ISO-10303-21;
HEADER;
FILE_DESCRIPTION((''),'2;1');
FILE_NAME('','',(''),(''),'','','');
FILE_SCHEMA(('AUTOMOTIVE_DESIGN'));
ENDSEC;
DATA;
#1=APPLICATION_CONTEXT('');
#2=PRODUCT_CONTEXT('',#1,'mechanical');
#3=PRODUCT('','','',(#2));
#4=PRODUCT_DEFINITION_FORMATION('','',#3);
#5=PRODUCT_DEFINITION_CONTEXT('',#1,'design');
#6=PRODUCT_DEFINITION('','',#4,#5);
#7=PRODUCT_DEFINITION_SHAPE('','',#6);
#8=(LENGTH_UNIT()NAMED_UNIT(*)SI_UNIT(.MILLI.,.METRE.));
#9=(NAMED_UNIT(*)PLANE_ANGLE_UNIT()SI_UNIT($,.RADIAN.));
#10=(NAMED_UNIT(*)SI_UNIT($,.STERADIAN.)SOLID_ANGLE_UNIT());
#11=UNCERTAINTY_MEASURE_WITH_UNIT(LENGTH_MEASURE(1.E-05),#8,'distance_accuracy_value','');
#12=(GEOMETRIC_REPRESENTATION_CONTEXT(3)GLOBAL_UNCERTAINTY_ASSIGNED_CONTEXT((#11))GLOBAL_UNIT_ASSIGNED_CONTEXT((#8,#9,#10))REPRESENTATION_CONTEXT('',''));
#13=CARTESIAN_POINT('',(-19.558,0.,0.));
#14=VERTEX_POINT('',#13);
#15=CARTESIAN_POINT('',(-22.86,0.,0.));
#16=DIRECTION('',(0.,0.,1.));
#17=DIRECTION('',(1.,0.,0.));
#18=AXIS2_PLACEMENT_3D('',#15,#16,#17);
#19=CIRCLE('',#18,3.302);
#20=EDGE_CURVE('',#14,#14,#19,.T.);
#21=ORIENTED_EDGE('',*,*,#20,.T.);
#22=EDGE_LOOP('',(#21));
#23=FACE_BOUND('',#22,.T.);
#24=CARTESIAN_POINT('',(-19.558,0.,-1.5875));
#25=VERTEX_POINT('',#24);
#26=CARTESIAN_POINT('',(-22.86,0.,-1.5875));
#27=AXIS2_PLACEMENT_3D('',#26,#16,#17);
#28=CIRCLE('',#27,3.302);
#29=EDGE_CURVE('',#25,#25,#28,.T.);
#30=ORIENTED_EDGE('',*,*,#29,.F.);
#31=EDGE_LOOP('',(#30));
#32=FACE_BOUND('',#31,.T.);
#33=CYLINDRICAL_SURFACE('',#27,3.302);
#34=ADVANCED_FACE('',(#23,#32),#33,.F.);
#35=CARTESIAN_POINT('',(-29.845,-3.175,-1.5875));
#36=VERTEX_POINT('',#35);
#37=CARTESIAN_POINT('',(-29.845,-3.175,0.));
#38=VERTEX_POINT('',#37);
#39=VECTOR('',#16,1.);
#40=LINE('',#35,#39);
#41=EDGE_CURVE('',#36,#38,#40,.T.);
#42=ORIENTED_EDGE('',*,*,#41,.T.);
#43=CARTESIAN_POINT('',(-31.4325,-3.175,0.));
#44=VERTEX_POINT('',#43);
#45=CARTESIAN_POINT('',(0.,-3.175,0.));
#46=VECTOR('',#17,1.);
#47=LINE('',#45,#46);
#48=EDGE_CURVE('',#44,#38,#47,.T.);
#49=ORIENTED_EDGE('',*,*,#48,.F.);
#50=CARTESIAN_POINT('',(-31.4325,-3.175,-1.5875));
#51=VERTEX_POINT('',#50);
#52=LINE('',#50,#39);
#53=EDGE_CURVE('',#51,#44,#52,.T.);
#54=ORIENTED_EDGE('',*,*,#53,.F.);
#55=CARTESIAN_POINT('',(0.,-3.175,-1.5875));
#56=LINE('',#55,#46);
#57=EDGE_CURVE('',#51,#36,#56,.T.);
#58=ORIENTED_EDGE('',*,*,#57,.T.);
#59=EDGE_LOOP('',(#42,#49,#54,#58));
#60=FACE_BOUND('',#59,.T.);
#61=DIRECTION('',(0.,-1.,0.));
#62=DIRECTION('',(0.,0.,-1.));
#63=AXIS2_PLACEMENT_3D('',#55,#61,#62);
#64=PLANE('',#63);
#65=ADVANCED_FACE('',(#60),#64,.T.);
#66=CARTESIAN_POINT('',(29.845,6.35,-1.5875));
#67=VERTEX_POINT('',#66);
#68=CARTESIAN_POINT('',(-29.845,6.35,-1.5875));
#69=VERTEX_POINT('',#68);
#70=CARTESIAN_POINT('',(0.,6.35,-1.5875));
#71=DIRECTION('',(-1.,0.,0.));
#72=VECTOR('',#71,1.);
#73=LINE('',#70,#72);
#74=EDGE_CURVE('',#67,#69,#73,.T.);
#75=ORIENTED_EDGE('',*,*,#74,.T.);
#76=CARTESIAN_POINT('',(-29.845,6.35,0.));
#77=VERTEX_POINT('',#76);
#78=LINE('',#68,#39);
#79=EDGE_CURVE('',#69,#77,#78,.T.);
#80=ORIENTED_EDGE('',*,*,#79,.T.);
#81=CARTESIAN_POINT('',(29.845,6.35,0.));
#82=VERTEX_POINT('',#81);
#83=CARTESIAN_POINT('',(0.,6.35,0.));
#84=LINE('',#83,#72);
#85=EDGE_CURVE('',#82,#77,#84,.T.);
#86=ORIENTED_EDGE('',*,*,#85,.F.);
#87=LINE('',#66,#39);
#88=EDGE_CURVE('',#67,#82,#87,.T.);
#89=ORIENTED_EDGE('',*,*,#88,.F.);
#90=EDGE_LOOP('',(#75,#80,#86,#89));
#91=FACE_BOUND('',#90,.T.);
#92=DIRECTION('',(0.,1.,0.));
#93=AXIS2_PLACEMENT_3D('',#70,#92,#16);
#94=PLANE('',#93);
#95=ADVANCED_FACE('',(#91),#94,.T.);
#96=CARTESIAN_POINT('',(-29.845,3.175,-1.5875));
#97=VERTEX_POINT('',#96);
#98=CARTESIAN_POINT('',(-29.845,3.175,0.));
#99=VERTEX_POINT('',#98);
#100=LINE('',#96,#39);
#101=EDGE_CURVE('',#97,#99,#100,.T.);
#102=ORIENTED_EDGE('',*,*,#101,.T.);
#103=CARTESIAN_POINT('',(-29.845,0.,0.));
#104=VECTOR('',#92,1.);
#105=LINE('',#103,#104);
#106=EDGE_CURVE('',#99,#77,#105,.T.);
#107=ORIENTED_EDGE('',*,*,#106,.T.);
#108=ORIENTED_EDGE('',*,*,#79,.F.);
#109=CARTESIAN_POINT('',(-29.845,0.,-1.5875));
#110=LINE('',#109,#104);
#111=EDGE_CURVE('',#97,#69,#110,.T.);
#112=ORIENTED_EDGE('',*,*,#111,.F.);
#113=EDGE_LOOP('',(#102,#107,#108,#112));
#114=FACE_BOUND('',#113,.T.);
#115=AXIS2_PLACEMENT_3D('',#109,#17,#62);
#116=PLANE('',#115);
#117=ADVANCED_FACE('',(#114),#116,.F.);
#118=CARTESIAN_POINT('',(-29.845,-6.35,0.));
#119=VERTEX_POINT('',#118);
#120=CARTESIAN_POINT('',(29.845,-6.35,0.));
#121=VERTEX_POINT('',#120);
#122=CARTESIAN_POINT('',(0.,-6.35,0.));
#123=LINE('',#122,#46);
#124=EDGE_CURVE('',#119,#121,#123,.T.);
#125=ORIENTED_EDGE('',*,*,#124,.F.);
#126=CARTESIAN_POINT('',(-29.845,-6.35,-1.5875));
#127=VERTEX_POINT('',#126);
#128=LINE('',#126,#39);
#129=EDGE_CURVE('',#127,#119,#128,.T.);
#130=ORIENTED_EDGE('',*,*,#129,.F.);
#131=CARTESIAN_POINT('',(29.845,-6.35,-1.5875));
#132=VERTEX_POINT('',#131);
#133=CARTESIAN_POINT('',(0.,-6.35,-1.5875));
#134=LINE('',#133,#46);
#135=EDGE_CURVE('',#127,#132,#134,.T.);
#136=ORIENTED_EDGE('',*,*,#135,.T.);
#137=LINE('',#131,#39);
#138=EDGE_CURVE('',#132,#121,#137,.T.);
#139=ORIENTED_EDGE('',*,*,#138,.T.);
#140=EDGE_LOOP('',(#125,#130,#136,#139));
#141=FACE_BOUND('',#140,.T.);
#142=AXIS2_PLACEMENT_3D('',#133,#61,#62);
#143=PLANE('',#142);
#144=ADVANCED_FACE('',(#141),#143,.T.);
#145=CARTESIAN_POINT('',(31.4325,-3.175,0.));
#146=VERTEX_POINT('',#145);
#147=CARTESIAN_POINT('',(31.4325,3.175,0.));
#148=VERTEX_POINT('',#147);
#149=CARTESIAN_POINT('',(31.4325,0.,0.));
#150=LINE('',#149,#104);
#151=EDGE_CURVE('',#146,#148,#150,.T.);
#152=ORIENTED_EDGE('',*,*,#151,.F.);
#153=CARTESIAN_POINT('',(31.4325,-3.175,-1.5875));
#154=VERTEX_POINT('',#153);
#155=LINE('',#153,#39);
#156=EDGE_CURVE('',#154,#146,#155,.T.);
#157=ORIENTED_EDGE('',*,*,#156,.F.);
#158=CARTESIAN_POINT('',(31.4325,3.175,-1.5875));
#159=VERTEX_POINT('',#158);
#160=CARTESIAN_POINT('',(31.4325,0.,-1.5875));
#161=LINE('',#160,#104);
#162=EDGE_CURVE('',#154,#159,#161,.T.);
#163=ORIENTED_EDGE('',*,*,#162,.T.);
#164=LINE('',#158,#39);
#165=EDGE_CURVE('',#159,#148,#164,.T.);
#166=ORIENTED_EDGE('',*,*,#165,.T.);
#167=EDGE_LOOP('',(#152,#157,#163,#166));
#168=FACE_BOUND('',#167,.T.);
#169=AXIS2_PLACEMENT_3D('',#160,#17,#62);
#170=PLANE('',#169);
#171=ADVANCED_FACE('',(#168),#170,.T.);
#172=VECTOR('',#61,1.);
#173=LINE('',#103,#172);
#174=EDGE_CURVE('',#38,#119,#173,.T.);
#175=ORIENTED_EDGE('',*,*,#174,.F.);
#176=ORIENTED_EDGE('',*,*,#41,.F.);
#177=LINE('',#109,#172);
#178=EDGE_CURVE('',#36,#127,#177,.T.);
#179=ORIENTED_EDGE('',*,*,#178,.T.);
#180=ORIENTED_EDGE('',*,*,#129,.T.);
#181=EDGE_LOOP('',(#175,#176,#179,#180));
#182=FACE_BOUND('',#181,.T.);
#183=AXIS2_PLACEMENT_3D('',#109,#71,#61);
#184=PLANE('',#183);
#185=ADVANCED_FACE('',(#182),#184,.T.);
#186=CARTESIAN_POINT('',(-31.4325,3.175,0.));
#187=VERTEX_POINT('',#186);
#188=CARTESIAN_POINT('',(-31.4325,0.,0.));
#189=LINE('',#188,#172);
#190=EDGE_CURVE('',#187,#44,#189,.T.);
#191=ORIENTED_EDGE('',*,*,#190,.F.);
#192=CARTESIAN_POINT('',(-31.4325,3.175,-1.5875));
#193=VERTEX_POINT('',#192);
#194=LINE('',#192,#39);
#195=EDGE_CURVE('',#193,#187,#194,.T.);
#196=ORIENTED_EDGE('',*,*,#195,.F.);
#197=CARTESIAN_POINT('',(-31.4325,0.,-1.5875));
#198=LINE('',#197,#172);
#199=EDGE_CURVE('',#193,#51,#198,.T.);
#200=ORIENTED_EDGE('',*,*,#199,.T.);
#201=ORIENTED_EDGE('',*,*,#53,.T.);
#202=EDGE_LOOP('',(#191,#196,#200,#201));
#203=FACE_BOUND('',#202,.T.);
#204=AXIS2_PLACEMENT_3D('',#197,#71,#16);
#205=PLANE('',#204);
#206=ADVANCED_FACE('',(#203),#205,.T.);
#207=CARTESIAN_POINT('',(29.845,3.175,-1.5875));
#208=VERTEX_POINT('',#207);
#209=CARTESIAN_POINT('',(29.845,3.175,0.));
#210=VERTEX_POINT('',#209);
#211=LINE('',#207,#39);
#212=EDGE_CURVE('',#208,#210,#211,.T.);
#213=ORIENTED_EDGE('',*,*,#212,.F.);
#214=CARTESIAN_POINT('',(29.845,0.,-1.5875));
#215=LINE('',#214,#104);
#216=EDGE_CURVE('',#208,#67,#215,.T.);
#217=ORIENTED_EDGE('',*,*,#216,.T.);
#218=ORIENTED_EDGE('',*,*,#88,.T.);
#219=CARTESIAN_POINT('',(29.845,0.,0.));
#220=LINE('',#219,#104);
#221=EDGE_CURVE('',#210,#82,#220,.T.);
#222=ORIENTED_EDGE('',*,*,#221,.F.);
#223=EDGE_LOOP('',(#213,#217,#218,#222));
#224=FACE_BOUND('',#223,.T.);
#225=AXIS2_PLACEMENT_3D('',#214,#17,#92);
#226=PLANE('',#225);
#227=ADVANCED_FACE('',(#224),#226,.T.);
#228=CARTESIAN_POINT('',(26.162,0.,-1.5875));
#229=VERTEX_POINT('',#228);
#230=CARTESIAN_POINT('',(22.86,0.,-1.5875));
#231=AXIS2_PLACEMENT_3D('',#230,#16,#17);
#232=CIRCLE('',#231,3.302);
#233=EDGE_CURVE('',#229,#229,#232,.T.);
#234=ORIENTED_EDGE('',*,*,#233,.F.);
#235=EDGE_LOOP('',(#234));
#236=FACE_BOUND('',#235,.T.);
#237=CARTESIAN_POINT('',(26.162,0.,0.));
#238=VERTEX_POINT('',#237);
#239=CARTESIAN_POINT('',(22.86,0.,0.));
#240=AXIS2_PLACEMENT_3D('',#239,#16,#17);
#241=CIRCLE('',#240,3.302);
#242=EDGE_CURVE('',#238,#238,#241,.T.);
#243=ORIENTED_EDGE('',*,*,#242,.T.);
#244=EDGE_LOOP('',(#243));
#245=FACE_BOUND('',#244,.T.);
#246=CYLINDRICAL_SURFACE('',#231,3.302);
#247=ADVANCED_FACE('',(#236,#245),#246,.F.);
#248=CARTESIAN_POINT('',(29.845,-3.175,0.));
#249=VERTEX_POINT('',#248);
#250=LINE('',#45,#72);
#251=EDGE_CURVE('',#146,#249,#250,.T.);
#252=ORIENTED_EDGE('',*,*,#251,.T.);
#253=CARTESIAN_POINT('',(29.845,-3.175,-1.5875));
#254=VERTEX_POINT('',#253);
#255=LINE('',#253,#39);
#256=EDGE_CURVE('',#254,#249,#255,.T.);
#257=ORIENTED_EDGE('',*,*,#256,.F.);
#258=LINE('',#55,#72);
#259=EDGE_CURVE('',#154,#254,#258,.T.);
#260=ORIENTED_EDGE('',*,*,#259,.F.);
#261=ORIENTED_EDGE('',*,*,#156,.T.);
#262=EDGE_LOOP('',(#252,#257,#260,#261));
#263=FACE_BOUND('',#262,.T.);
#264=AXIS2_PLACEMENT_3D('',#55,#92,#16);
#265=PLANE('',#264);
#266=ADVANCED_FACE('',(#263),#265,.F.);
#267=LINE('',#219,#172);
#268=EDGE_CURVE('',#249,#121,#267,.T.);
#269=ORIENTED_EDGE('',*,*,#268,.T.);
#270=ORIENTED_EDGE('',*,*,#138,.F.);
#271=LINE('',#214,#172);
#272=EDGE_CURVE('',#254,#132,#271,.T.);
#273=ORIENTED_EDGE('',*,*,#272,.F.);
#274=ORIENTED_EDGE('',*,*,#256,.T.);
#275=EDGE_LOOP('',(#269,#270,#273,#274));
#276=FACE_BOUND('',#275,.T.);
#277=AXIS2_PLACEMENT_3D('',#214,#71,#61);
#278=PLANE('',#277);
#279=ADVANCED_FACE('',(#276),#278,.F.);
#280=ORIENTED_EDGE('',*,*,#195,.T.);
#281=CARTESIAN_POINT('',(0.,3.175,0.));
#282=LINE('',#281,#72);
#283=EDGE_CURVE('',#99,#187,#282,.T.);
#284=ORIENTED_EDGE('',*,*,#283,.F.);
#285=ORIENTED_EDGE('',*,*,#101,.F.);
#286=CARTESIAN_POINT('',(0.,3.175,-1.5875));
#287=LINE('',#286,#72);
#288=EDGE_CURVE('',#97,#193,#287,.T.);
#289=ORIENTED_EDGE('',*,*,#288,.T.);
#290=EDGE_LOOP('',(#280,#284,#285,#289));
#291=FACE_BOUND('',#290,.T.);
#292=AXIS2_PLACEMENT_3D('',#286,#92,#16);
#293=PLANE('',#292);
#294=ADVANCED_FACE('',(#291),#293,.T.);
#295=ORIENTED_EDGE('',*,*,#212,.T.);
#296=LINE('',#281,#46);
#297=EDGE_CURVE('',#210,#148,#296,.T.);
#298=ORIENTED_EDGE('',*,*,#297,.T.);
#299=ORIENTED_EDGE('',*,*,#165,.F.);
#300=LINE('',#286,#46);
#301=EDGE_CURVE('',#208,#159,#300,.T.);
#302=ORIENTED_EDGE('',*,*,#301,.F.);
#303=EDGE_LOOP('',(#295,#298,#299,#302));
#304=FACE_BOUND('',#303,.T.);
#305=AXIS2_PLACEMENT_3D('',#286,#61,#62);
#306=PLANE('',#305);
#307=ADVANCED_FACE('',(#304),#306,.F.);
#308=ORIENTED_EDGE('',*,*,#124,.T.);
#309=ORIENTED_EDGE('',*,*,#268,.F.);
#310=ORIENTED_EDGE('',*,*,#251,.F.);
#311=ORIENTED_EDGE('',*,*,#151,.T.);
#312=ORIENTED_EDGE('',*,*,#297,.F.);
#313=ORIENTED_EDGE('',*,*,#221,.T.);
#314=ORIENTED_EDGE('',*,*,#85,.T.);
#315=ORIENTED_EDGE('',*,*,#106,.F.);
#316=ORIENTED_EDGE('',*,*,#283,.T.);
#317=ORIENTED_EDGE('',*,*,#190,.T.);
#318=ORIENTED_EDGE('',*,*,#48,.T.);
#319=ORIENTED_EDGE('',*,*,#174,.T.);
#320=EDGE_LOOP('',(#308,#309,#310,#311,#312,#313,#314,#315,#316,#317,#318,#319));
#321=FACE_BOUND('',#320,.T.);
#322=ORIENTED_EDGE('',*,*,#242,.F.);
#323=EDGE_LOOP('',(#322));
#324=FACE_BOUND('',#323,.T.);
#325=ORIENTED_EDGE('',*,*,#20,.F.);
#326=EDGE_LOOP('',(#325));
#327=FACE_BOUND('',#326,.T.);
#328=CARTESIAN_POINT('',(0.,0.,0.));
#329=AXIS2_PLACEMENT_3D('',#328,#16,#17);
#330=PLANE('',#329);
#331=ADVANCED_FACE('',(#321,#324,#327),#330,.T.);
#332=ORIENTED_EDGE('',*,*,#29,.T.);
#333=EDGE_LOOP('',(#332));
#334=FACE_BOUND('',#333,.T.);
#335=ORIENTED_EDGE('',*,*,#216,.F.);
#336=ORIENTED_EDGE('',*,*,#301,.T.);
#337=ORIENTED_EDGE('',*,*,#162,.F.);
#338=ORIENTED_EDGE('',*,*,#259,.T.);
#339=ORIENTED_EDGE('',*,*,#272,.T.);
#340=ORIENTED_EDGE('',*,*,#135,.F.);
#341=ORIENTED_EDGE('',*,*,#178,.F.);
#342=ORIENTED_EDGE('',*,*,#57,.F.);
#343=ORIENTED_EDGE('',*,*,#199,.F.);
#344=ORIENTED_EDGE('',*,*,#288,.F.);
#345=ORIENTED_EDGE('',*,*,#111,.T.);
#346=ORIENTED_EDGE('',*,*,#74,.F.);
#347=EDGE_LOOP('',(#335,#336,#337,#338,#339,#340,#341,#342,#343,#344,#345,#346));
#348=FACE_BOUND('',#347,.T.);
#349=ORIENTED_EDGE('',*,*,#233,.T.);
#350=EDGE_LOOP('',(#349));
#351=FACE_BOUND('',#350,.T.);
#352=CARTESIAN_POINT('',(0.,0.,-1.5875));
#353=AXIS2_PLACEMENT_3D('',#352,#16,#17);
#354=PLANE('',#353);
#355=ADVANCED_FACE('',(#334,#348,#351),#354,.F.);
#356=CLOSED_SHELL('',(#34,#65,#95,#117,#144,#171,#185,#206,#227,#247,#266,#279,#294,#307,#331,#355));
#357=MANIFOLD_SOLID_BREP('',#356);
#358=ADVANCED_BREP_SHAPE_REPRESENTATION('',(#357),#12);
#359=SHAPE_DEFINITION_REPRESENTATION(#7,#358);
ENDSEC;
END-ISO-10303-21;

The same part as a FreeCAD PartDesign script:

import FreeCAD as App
import Part
import Sketcher

V = App.Vector
Q = App.Units.Quantity

doc = App.newDocument("Part")
body = doc.addObject("PartDesign::Body", "Body")

sketch1 = doc.addObject("Sketcher::SketchObject", "Sketch")
body.addObject(sketch1)
sketch1.AttachmentSupport = (doc.XY_Plane, [""])
sketch1.MapMode = "FlatFace"
sketch1.addGeometry([
    Part.LineSegment(V(29.8, -3.2, 0), V(31.4, -3.2, 0)),
    Part.LineSegment(V(31.4, -3.2, 0), V(31.4, 3.2, 0)),
    Part.LineSegment(V(31.4, 3.2, 0), V(29.8, 3.2, 0)),
    Part.LineSegment(V(29.8, 3.2, 0), V(29.8, 6.3, 0)),
    Part.LineSegment(V(29.8, 6.3, 0), V(-29.8, 6.3, 0)),
    Part.LineSegment(V(-29.8, 6.3, 0), V(-29.8, 3.2, 0)),
    Part.LineSegment(V(-29.8, 3.2, 0), V(-31.4, 3.2, 0)),
    Part.LineSegment(V(-31.4, 3.2, 0), V(-31.4, -3.2, 0)),
    Part.LineSegment(V(-31.4, -3.2, 0), V(-29.8, -3.2, 0)),
    Part.LineSegment(V(-29.8, -3.2, 0), V(-29.8, -6.3, 0)),
    Part.LineSegment(V(-29.8, -6.3, 0), V(29.8, -6.3, 0)),
    Part.LineSegment(V(29.8, -6.3, 0), V(29.8, -3.2, 0)),
    Part.Circle(V(-22.9, 0, 0), V(0, 0, 1), 3.3),
    Part.Circle(V(22.9, 0, 0), V(0, 0, 1), 3.3),
], False)
sketch1.addConstraint([
    Sketcher.Constraint("Coincident", 0, 2, 1, 1),
    Sketcher.Constraint("Coincident", 1, 2, 2, 1),
    Sketcher.Constraint("Coincident", 2, 2, 3, 1),
    Sketcher.Constraint("Coincident", 3, 2, 4, 1),
    Sketcher.Constraint("Coincident", 4, 2, 5, 1),
    Sketcher.Constraint("Coincident", 5, 2, 6, 1),
    Sketcher.Constraint("Coincident", 6, 2, 7, 1),
    Sketcher.Constraint("Coincident", 7, 2, 8, 1),
    Sketcher.Constraint("Coincident", 8, 2, 9, 1),
    Sketcher.Constraint("Coincident", 9, 2, 10, 1),
    Sketcher.Constraint("Coincident", 10, 2, 11, 1),
    Sketcher.Constraint("Coincident", 11, 2, 0, 1),
    Sketcher.Constraint("Horizontal", 0),
    Sketcher.Constraint("Vertical", 1),
    Sketcher.Constraint("Horizontal", 2),
    Sketcher.Constraint("Vertical", 3),
    Sketcher.Constraint("Horizontal", 4),
    Sketcher.Constraint("Vertical", 5),
    Sketcher.Constraint("Horizontal", 6),
    Sketcher.Constraint("Vertical", 7),
    Sketcher.Constraint("Horizontal", 8),
    Sketcher.Constraint("Vertical", 9),
    Sketcher.Constraint("Horizontal", 10),
    Sketcher.Constraint("Vertical", 11),
    Sketcher.Constraint("Equal", 12, 13),
    Sketcher.Constraint("Symmetric", 12, 3, 13, 3, -1, 1),
    Sketcher.Constraint("Symmetric", 0, 2, 6, 2, -1, 1),
    Sketcher.Constraint("Symmetric", 2, 2, 8, 2, -1, 1),
    Sketcher.Constraint("Symmetric", 4, 2, 10, 2, -1, 1),
    Sketcher.Constraint("Symmetric", 2, 2, 5, 2, -2),
    Sketcher.Constraint("PointOnObject", 12, 3, -1),
    Sketcher.Constraint("Diameter", 12, Q("0.26 in")),
    Sketcher.Constraint("DistanceX", 4, 2, 4, 1, Q("2.35 in")),
    Sketcher.Constraint("DistanceY", 1, 1, 1, 2, Q("0.25 in")),
    Sketcher.Constraint("DistanceX", 12, 3, -1, 1, Q("0.9 in")),
    Sketcher.Constraint("DistanceY", 10, 2, 3, 2, Q("0.5 in")),
    Sketcher.Constraint("DistanceX", 0, 1, 0, 2, Q("0.0625 in")),
])
pad1 = doc.addObject("PartDesign::Pad", "Pad")
body.addObject(pad1)
pad1.Profile = sketch1
pad1.Length = Q("0.0625 in")
pad1.Reversed = True

doc.recompute()
